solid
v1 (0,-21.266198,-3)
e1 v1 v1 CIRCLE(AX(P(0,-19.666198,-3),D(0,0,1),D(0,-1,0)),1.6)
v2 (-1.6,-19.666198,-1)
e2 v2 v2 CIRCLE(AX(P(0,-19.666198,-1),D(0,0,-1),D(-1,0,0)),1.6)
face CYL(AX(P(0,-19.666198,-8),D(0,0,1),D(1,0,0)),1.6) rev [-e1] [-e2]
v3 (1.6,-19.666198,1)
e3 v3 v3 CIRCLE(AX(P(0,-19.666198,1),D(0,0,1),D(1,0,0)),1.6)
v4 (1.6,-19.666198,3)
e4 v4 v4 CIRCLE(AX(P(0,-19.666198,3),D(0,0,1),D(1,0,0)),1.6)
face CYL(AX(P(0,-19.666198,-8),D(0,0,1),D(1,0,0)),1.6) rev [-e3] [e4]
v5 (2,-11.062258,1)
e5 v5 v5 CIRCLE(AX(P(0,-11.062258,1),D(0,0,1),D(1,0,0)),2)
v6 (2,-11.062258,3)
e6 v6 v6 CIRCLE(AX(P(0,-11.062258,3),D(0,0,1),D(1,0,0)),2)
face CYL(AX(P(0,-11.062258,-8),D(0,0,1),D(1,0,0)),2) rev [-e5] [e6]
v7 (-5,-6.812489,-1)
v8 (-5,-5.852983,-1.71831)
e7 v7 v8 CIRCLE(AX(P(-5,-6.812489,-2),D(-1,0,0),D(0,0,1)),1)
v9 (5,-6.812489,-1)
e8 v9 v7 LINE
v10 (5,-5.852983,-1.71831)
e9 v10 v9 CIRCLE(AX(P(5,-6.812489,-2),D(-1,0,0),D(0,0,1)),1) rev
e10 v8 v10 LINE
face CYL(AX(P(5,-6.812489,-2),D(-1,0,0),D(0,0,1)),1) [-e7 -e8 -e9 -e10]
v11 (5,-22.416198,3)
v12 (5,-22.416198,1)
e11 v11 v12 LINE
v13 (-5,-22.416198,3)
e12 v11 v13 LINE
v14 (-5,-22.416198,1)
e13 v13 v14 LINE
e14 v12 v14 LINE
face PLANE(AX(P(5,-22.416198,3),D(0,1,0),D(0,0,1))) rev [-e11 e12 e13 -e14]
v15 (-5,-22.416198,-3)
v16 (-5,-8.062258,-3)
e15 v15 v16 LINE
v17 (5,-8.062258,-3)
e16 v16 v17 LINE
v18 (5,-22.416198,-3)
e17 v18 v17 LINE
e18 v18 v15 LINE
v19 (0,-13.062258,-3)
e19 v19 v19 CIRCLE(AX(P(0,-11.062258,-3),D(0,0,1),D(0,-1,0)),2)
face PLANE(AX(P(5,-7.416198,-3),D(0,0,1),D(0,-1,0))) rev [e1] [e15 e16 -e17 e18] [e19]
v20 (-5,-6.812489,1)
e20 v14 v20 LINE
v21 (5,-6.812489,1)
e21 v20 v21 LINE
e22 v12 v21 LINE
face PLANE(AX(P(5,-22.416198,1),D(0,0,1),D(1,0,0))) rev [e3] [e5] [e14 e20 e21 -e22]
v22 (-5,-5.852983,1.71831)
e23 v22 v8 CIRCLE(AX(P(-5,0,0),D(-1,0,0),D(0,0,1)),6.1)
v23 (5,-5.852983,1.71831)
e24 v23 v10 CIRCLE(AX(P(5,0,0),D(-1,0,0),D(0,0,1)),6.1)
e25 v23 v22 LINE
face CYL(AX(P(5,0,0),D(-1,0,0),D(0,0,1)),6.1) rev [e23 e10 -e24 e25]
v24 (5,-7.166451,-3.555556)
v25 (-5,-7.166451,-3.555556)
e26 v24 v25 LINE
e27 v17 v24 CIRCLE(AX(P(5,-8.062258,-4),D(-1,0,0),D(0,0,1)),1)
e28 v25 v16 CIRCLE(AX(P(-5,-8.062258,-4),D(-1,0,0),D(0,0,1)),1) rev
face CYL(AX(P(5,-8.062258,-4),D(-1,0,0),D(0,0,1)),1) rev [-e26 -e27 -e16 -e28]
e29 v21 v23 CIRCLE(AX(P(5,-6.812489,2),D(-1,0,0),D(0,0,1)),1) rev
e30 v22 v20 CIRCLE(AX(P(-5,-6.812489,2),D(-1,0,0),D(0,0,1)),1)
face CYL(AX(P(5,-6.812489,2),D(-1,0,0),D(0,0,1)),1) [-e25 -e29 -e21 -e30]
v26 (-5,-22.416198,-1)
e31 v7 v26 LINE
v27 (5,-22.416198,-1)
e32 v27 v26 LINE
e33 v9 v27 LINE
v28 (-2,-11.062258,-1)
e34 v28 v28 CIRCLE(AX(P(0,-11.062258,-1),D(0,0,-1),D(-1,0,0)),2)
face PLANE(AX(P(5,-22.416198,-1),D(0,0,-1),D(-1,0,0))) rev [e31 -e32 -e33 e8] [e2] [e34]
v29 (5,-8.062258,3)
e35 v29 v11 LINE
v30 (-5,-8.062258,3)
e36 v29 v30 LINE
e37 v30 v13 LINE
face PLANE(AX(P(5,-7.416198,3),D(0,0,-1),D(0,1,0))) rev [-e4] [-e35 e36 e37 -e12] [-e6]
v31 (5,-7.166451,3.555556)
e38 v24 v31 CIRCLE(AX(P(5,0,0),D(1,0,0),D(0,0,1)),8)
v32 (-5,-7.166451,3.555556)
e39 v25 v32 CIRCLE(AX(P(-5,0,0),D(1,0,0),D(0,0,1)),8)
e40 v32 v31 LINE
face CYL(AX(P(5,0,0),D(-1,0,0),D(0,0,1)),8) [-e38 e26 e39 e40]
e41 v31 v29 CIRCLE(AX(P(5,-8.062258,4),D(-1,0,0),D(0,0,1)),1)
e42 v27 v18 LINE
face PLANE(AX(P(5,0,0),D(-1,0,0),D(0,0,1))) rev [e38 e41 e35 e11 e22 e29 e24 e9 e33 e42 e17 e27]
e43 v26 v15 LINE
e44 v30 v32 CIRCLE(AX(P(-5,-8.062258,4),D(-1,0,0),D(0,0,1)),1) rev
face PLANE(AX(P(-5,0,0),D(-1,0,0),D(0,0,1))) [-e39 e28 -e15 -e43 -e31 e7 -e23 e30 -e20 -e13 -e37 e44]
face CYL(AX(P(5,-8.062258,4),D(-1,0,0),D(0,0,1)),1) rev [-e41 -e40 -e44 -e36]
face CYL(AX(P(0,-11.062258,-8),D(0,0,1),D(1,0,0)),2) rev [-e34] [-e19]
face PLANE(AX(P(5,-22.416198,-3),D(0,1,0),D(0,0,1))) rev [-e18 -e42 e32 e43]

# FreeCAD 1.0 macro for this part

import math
import FreeCAD as App
import Part
import Sketcher
Q = App.Units.Quantity


def edges_at(feature, points):
    """Names of the edges that pass closest to the given points."""
    edges = feature.Shape.Edges
    near = lambda p: min(range(len(edges)), key=lambda i: edges[i].distToShape(Part.Vertex(*p))[0])
    return sorted({f"Edge{near(p) + 1}" for p in points})

doc = App.newDocument("Part")
body = doc.addObject("PartDesign::Body", "Body")

sketch1 = doc.addObject("Sketcher::SketchObject", "Sketch")
body.addObject(sketch1)
sketch1.AttachmentSupport = (doc.YZ_Plane, [""])
sketch1.MapMode = "FlatFace"
sketch1.addGeometry([
    Part.LineSegment(App.Vector(-7.4, 3, 0), App.Vector(-22.4, 3, 0)),
    Part.LineSegment(App.Vector(-22.4, 3, 0), App.Vector(-22.4, 1, 0)),
    Part.LineSegment(App.Vector(-22.4, 1, 0), App.Vector(-6, 1, 0)),
    Part.ArcOfCircle(Part.Circle(App.Vector(0, 0, 0), App.Vector(0, 0, 1), 6.1), math.radians(-171), math.radians(171)),
    Part.LineSegment(App.Vector(-6, -1, 0), App.Vector(-22.4, -1, 0)),
    Part.LineSegment(App.Vector(-22.4, -1, 0), App.Vector(-22.4, -3, 0)),
    Part.LineSegment(App.Vector(-22.4, -3, 0), App.Vector(-7.4, -3, 0)),
    Part.ArcOfCircle(Part.Circle(App.Vector(0, 0, 0), App.Vector(0, 0, 1), 8), math.radians(-158), math.radians(158)),
], False)
sketch1.addConstraint([
    Sketcher.Constraint("Coincident", 0, 2, 1, 1),
    Sketcher.Constraint("Coincident", 1, 2, 2, 1),
    Sketcher.Constraint("Coincident", 2, 2, 3, 2),
    Sketcher.Constraint("Coincident", 3, 1, 4, 1),
    Sketcher.Constraint("Coincident", 4, 2, 5, 1),
    Sketcher.Constraint("Coincident", 5, 2, 6, 1),
    Sketcher.Constraint("Coincident", 6, 2, 7, 1),
    Sketcher.Constraint("Coincident", 7, 2, 0, 1),
    Sketcher.Constraint("Horizontal", 0),
    Sketcher.Constraint("Vertical", 1),
    Sketcher.Constraint("Horizontal", 2),
    Sketcher.Constraint("Horizontal", 4),
    Sketcher.Constraint("Vertical", 5),
    Sketcher.Constraint("Horizontal", 6),
    Sketcher.Constraint("Coincident", 3, 3, -1, 1),
    Sketcher.Constraint("Coincident", 7, 3, -1, 1),
    Sketcher.Constraint("Symmetric", 1, 2, 4, 2, -1),
    Sketcher.Constraint("Vertical", 6, 2, 7, 2),
    Sketcher.Constraint("Radius", 7, Q("8 mm")),
    Sketcher.Constraint("Radius", 3, Q("6.1 mm")),
    Sketcher.Constraint("DistanceX", 0, 2, 0, 1, Q("15 mm")),
    Sketcher.Constraint("DistanceY", 1, 2, 1, 1, Q("2 mm")),
    Sketcher.Constraint("DistanceY", -1, 1, 0, 2, Q("3 mm")),
])
pad1 = doc.addObject("PartDesign::Pad", "Pad")
body.addObject(pad1)
pad1.Profile = sketch1
pad1.Length = 10
pad1.Midplane = True
doc.recompute()

fillet = doc.addObject("PartDesign::Fillet", "Fillet")
body.addObject(fillet)
fillet.Base = (pad1, edges_at(pad1, [
    (0, -6.017, 1),
    (0, -7.416, 3),
    (0, -7.416, -3),
    (0, -6.017, -1),
]))
fillet.Radius = 1

sketch2 = doc.addObject("Sketcher::SketchObject", "Sketch001")
body.addObject(sketch2)
sketch2.AttachmentSupport = (doc.XY_Plane, [""])
sketch2.MapMode = "FlatFace"
sketch2.AttachmentOffset = App.Placement(App.Vector(0, 0, 3), App.Rotation())
sketch2.addGeometry([
    Part.Circle(App.Vector(0, -19.7, 0), App.Vector(0, 0, 1), 1.6),
    Part.Circle(App.Vector(0, -11.1, 0), App.Vector(0, 0, 1), 2),
], False)
sketch2.addConstraint([
    Sketcher.Constraint("PointOnObject", 0, 3, -2),
    Sketcher.Constraint("PointOnObject", 1, 3, -2),
    Sketcher.Constraint("Diameter", 1, Q("4 mm")),
    Sketcher.Constraint("Diameter", 0, Q("3.2 mm")),
    Sketcher.Constraint("DistanceY", 0, 3, -1, 1, Q("19.666198 mm")),
    Sketcher.Constraint("DistanceY", 0, 3, 1, 3, Q("8.603941 mm")),
])
pocket1 = doc.addObject("PartDesign::Pocket", "Pocket")
body.addObject(pocket1)
pocket1.Profile = sketch2
pocket1.Type = "ThroughAll"

doc.recompute()
